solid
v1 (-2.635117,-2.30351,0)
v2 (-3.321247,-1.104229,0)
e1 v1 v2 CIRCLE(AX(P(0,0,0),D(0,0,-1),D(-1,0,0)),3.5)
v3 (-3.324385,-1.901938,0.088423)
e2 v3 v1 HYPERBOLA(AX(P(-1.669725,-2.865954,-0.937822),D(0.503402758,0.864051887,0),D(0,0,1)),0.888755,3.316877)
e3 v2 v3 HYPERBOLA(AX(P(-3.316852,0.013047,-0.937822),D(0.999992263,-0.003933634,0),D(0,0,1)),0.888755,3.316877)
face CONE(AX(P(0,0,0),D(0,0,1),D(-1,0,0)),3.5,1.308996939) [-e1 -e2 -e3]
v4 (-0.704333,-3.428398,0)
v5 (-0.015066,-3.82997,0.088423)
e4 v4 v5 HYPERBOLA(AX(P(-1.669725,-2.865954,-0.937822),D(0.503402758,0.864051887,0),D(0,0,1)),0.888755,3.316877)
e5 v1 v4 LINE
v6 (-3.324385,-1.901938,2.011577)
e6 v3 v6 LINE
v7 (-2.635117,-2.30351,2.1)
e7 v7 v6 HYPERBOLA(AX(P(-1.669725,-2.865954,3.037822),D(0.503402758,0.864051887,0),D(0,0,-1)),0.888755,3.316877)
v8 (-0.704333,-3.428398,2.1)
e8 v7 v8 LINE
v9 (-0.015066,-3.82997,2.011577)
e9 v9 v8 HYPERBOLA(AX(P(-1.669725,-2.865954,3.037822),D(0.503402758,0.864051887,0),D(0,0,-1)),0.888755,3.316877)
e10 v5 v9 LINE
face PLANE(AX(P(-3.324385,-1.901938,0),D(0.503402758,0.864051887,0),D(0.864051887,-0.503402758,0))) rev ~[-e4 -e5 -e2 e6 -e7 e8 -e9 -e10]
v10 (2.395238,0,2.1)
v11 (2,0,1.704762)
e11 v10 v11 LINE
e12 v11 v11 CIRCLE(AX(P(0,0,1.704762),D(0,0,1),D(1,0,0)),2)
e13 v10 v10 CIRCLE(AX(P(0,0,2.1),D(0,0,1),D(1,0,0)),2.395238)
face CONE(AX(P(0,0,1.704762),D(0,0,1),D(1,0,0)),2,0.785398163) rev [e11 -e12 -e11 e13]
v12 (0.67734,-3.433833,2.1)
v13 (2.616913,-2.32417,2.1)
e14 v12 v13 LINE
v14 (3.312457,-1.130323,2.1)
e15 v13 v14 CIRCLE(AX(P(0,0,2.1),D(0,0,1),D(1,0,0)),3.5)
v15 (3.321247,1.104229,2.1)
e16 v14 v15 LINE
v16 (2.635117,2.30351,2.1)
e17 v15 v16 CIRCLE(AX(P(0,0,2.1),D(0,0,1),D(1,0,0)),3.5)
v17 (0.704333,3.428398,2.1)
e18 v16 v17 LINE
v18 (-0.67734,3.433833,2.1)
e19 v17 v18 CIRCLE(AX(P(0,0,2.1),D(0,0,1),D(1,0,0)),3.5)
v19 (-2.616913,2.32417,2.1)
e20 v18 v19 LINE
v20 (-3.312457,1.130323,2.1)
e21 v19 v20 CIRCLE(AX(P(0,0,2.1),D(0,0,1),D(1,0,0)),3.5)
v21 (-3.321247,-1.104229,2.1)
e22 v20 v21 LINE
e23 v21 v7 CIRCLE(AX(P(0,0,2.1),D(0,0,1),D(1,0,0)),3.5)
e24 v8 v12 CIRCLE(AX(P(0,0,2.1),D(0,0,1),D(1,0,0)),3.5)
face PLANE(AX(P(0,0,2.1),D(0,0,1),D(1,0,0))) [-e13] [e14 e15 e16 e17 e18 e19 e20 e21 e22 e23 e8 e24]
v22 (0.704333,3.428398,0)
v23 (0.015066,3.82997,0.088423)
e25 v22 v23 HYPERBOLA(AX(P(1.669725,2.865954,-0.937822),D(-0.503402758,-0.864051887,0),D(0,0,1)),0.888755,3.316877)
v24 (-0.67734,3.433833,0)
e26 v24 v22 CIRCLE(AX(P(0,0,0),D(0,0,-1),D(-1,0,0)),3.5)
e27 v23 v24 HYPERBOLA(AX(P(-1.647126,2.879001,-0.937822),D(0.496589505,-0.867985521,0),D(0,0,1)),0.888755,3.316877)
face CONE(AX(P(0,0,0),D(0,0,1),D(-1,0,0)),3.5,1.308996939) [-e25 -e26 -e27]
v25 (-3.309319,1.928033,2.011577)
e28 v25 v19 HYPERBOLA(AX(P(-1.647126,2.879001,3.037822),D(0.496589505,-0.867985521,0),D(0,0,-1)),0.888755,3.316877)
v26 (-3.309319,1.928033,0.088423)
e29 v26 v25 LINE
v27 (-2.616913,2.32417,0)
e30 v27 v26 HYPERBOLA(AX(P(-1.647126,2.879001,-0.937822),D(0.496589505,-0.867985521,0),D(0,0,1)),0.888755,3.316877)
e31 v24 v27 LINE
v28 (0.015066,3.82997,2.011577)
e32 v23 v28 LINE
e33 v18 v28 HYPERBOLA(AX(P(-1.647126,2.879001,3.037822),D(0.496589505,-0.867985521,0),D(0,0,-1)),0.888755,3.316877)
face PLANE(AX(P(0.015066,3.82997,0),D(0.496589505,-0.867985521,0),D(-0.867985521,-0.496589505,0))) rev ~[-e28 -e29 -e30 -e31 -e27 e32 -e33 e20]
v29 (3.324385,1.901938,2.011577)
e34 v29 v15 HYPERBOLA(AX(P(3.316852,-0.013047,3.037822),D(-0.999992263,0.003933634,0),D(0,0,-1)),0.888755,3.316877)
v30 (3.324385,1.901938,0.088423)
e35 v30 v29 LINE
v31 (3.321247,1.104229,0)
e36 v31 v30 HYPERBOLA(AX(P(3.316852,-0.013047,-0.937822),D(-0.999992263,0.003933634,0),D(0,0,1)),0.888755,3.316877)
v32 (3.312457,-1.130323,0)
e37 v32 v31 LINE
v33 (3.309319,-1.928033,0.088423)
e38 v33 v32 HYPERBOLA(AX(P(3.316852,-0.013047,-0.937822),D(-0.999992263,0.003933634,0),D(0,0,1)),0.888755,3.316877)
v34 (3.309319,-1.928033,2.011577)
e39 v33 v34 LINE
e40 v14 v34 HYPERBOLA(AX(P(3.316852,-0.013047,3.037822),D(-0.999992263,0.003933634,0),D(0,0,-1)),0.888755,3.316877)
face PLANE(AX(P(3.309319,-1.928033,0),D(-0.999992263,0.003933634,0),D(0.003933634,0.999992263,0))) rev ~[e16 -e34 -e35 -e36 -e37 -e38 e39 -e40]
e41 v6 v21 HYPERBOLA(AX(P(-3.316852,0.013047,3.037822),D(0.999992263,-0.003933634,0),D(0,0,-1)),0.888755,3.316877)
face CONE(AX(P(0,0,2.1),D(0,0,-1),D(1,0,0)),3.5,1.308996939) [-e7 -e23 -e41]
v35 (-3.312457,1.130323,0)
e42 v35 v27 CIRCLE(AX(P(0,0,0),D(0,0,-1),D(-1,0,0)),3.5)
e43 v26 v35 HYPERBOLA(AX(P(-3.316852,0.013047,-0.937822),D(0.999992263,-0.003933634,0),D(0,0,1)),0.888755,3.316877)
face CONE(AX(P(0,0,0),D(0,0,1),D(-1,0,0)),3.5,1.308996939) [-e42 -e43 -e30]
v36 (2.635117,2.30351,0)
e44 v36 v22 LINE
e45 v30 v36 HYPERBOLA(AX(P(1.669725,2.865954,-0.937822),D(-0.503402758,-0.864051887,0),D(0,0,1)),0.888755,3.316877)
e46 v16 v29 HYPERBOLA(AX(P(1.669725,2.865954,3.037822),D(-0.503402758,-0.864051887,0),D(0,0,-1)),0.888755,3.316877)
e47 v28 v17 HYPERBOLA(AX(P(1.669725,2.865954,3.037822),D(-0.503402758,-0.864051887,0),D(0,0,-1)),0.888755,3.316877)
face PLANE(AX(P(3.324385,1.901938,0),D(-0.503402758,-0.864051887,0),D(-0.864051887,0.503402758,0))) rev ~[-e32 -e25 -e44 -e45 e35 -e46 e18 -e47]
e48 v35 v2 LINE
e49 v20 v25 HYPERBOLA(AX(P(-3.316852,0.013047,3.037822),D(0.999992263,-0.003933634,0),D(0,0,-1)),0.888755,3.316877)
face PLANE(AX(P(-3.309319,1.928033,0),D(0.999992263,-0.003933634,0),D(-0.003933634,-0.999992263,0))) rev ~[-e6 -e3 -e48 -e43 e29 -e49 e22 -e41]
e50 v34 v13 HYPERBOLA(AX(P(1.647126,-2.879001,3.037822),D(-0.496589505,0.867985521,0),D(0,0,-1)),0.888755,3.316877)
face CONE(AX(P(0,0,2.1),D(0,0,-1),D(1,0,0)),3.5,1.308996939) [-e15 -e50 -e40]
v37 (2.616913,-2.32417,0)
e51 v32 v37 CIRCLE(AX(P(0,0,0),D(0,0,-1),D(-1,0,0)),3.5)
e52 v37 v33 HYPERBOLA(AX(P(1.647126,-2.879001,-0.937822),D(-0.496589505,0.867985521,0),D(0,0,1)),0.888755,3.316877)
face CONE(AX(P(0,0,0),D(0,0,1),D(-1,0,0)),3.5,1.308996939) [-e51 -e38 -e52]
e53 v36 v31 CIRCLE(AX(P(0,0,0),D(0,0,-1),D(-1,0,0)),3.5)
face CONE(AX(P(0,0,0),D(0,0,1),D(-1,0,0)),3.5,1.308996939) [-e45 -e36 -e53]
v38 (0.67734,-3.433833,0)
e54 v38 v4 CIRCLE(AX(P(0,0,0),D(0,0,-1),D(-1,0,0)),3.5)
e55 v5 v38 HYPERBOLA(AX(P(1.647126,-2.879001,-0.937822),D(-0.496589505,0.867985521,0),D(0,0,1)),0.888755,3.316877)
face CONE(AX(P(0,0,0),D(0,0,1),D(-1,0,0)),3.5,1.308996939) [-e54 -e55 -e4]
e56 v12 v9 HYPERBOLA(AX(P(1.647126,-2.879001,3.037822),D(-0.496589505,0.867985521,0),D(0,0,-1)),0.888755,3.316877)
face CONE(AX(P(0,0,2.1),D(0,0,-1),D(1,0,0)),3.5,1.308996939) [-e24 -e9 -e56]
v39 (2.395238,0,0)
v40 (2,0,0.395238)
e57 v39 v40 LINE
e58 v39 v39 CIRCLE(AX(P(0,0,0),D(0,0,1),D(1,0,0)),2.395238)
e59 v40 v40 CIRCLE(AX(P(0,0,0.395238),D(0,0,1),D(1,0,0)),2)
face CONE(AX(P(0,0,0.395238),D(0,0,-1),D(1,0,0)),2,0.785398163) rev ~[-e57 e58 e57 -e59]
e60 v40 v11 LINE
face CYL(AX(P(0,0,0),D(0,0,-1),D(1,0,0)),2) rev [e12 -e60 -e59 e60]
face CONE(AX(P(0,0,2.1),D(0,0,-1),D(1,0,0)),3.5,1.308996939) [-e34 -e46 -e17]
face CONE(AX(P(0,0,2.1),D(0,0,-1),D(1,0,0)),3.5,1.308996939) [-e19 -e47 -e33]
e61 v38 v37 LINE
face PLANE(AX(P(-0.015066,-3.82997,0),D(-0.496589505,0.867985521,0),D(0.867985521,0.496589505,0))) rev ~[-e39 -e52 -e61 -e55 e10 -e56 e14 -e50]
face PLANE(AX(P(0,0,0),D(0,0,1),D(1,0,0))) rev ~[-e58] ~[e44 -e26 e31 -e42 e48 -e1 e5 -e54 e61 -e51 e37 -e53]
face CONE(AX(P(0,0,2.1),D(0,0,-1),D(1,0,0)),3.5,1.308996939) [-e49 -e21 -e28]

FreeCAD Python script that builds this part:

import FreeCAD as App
import Part
import Sketcher


def edges_at(feature, points):
    """Names of the edges that pass closest to the given points."""
    edges = feature.Shape.Edges
    near = lambda p: min(range(len(edges)), key=lambda i: edges[i].distToShape(Part.Vertex(*p))[0])
    return sorted({f"Edge{near(p) + 1}" for p in points})


def faces_at(feature, points):
    """Names of the faces that lie closest to the given points."""
    faces = feature.Shape.Faces
    near = lambda p: min(range(len(faces)), key=lambda i: faces[i].distToShape(Part.Vertex(*p))[0])
    return sorted({f"Face{near(p) + 1}" for p in points})

doc = App.newDocument("Part")
body = doc.addObject("PartDesign::Body", "Body")

sketch1 = doc.addObject("Sketcher::SketchObject", "Sketch")
body.addObject(sketch1)
sketch1.AttachmentSupport = (doc.XY_Plane, [""])
sketch1.MapMode = "FlatFace"
sketch1.addGeometry(Part.LineSegment(App.Vector(0, 3.8, 0), App.Vector(-3.3, 1.9, 0)), False)
sketch1.addGeometry(Part.LineSegment(App.Vector(-3.3, 1.9, 0), App.Vector(-3.3, -1.9, 0)), False)
sketch1.addGeometry(Part.LineSegment(App.Vector(-3.3, -1.9, 0), App.Vector(0, -3.8, 0)), False)
sketch1.addGeometry(Part.LineSegment(App.Vector(0, -3.8, 0), App.Vector(3.3, -1.9, 0)), False)
sketch1.addGeometry(Part.LineSegment(App.Vector(3.3, -1.9, 0), App.Vector(3.3, 1.9, 0)), False)
sketch1.addGeometry(Part.LineSegment(App.Vector(3.3, 1.9, 0), App.Vector(0, 3.8, 0)), False)
sketch1.addGeometry(Part.Circle(App.Vector(0, 0, 0), App.Vector(0, 0, 1), 2), False)
sketch1.addConstraint(Sketcher.Constraint("Coincident", 0, 2, 1, 1))
sketch1.addConstraint(Sketcher.Constraint("Coincident", 1, 2, 2, 1))
sketch1.addConstraint(Sketcher.Constraint("Coincident", 2, 2, 3, 1))
sketch1.addConstraint(Sketcher.Constraint("Coincident", 3, 2, 4, 1))
sketch1.addConstraint(Sketcher.Constraint("Coincident", 4, 2, 5, 1))
sketch1.addConstraint(Sketcher.Constraint("Coincident", 5, 2, 0, 1))
sketch1.addConstraint(Sketcher.Constraint("Coincident", 6, 3, -1, 1))
sketch1.addConstraint(Sketcher.Constraint("Symmetric", 0, 2, 3, 2, -1, 1))
sketch1.addConstraint(Sketcher.Constraint("Symmetric", 1, 2, 4, 2, -1, 1))
sketch1.addConstraint(Sketcher.Constraint("Symmetric", 2, 2, 5, 2, -1, 1))
sketch1.addConstraint(Sketcher.Constraint("Equal", 0, 1))
sketch1.addConstraint(Sketcher.Constraint("Equal", 1, 2))
sketch1.addConstraint(Sketcher.Constraint("Diameter", 6, 4.0))
sketch1.addConstraint(Sketcher.Constraint("Distance", 0, 3.83))
sketch1.addConstraint(Sketcher.Constraint("DistanceX", 0, 2, -1, 1, 3.309319))
sketch1.addConstraint(Sketcher.Constraint("DistanceY", 2, 2, -1, 1, 3.82997))
sketch1.addConstraint(Sketcher.Constraint("DistanceX", 1, 2, 2, 2, 3.309319))
pad1 = doc.addObject("PartDesign::Pad", "Pad")
body.addObject(pad1)
pad1.Profile = sketch1
pad1.Length = 2.1
body2 = doc.addObject("PartDesign::Body", "Body001")

sketch2 = doc.addObject("Sketcher::SketchObject", "Sketch001")
body2.addObject(sketch2)
sketch2.AttachmentSupport = (doc.getObject("XY_Plane001"), [""])
sketch2.MapMode = "FlatFace"
sketch2.addGeometry(Part.LineSegment(App.Vector(29.6, 30.1, 0), App.Vector(29.6, -30.1, 0)), False)
sketch2.addGeometry(Part.LineSegment(App.Vector(29.6, -30.1, 0), App.Vector(-29.6, -30.1, 0)), False)
sketch2.addGeometry(Part.LineSegment(App.Vector(-29.6, -30.1, 0), App.Vector(-29.6, 30.1, 0)), False)
sketch2.addGeometry(Part.LineSegment(App.Vector(-29.6, 30.1, 0), App.Vector(29.6, 30.1, 0)), False)
sketch2.addGeometry(Part.Circle(App.Vector(0, 0, 0), App.Vector(0, 0, 1), 3.5), False)
sketch2.addConstraint(Sketcher.Constraint("Coincident", 0, 2, 1, 1))
sketch2.addConstraint(Sketcher.Constraint("Coincident", 1, 2, 2, 1))
sketch2.addConstraint(Sketcher.Constraint("Coincident", 2, 2, 3, 1))
sketch2.addConstraint(Sketcher.Constraint("Coincident", 3, 2, 0, 1))
sketch2.addConstraint(Sketcher.Constraint("Vertical", 0))
sketch2.addConstraint(Sketcher.Constraint("Horizontal", 1))
sketch2.addConstraint(Sketcher.Constraint("Vertical", 2))
sketch2.addConstraint(Sketcher.Constraint("Horizontal", 3))
sketch2.addConstraint(Sketcher.Constraint("Coincident", 4, 3, -1, 1))
sketch2.addConstraint(Sketcher.Constraint("Symmetric", 0, 2, 2, 2, -1, 1))
sketch2.addConstraint(Sketcher.Constraint("Diameter", 4, 7.0))
sketch2.addConstraint(Sketcher.Constraint("DistanceX", 1, 2, 1, 1, 59.154))
sketch2.addConstraint(Sketcher.Constraint("DistanceY", 0, 2, 0, 1, 60.166))
pad2 = doc.addObject("PartDesign::Pad", "Pad001")
body2.addObject(pad2)
pad2.Profile = sketch2
pad2.Length = 6.489099
doc.recompute()

draft = doc.addObject("PartDesign::Draft", "Draft")
body2.addObject(draft)
draft.Base = (pad2, faces_at(pad2, [
    (0, -30.083, 3.245),
    (-29.577, 0, 3.245),
    (0, 30.083, 3.245),
    (29.577, 0, 3.245),
    (3.5, 0, 3.245),
]))
draft.NeutralPlane = (doc.getObject("XY_Plane001"), [""])
draft.Angle = 75
draft.Reversed = False
doc.recompute()

boolean = doc.addObject("PartDesign::Boolean", "Boolean")
body.addObject(boolean)
boolean.Type = "Cut"
boolean.addObjects([body2])
body3 = doc.addObject("PartDesign::Body", "Body002")

sketch3 = doc.addObject("Sketcher::SketchObject", "Sketch002")
body3.addObject(sketch3)
sketch3.AttachmentSupport = (doc.getObject("XY_Plane002"), [""])
sketch3.MapMode = "FlatFace"
sketch3.AttachmentOffset = App.Placement(App.Vector(0, 0, 2.1), App.Rotation())
sketch3.addGeometry(Part.LineSegment(App.Vector(-29.6, 30.1, 0), App.Vector(-29.6, -30.1, 0)), False)
sketch3.addGeometry(Part.LineSegment(App.Vector(-29.6, -30.1, 0), App.Vector(29.6, -30.1, 0)), False)
sketch3.addGeometry(Part.LineSegment(App.Vector(29.6, -30.1, 0), App.Vector(29.6, 30.1, 0)), False)
sketch3.addGeometry(Part.LineSegment(App.Vector(29.6, 30.1, 0), App.Vector(-29.6, 30.1, 0)), False)
sketch3.addGeometry(Part.Circle(App.Vector(0, 0, 0), App.Vector(0, 0, 1), 3.5), False)
sketch3.addConstraint(Sketcher.Constraint("Coincident", 0, 2, 1, 1))
sketch3.addConstraint(Sketcher.Constraint("Coincident", 1, 2, 2, 1))
sketch3.addConstraint(Sketcher.Constraint("Coincident", 2, 2, 3, 1))
sketch3.addConstraint(Sketcher.Constraint("Coincident", 3, 2, 0, 1))
sketch3.addConstraint(Sketcher.Constraint("Vertical", 0))
sketch3.addConstraint(Sketcher.Constraint("Horizontal", 1))
sketch3.addConstraint(Sketcher.Constraint("Vertical", 2))
sketch3.addConstraint(Sketcher.Constraint("Horizontal", 3))
sketch3.addConstraint(Sketcher.Constraint("Coincident", 4, 3, -1, 1))
sketch3.addConstraint(Sketcher.Constraint("Symmetric", 0, 2, 2, 2, -1, 1))
sketch3.addConstraint(Sketcher.Constraint("Diameter", 4, 7.0))
sketch3.addConstraint(Sketcher.Constraint("DistanceX", 1, 1, 1, 2, 59.154))
sketch3.addConstraint(Sketcher.Constraint("DistanceY", 0, 2, 0, 1, 60.166))
pad3 = doc.addObject("PartDesign::Pad", "Pad002")
body3.addObject(pad3)
pad3.Profile = sketch3
pad3.Length = 6.489099
pad3.Reversed = True
doc.recompute()

datumplane = doc.addObject("PartDesign::Plane", "DatumPlane")
body3.addObject(datumplane)
datumplane.AttachmentSupport = (doc.getObject("XY_Plane002"), [""])
datumplane.MapMode = "FlatFace"
datumplane.AttachmentOffset = App.Placement(App.Vector(0, 0, 2.1), App.Rotation())
draft2 = doc.addObject("PartDesign::Draft", "Draft001")
body3.addObject(draft2)
draft2.Base = (pad3, faces_at(pad3, [
    (0, -30.083, -1.145),
    (29.577, 0, -1.145),
    (0, 30.083, -1.145),
    (-29.577, 0, -1.145),
    (-3.5, 0, -1.145),
]))
draft2.NeutralPlane = (datumplane, [""])
draft2.Angle = 75
draft2.Reversed = True
doc.recompute()

boolean2 = doc.addObject("PartDesign::Boolean", "Boolean001")
body.addObject(boolean2)
boolean2.Type = "Cut"
boolean2.addObjects([body3])
doc.recompute()

chamfer = doc.addObject("PartDesign::Chamfer", "Chamfer")
body.addObject(chamfer)
chamfer.Base = (boolean2, edges_at(boolean2, [(-2, 0, 0), (-2, 0, 2.1)]))
chamfer.Size = 0.395238

doc.recompute()
